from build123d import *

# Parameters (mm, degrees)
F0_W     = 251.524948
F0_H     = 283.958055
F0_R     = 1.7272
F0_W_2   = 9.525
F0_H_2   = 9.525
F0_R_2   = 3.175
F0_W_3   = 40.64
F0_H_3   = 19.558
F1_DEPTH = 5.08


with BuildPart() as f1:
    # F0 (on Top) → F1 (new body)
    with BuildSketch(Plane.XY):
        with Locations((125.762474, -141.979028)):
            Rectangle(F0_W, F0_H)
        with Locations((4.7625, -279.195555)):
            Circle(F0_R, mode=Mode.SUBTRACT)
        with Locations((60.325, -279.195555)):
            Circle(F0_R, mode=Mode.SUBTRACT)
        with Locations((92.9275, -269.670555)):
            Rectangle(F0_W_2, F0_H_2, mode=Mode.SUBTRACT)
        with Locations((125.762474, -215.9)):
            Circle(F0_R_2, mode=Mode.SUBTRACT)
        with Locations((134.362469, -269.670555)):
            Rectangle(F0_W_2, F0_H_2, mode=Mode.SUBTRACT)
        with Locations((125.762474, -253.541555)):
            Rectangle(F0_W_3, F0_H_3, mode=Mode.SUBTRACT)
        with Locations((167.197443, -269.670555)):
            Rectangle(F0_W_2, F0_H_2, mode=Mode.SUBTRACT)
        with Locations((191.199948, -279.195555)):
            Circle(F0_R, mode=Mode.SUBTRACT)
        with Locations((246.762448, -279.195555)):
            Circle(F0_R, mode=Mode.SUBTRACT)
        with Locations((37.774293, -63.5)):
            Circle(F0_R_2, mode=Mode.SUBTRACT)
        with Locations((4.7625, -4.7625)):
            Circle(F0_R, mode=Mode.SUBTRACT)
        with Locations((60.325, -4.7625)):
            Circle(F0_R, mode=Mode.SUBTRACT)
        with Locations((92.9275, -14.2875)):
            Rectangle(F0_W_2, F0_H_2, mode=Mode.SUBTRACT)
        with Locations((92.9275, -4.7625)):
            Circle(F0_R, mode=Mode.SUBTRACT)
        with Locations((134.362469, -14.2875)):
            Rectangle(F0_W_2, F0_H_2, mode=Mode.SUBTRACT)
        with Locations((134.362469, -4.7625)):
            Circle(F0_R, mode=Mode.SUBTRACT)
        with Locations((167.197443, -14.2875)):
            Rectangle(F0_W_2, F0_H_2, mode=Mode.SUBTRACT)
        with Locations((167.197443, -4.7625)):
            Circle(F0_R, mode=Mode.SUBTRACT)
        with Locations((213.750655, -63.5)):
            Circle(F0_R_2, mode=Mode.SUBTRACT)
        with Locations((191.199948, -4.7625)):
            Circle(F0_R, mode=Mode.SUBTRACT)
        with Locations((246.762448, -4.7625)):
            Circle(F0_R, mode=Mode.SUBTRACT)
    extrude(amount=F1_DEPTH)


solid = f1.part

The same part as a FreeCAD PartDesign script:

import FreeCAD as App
import Part
import Sketcher
from FreeCAD import Vector
Q = App.Units.Quantity


def add_polygon(sketch, points):
    """Adds a closed chain of lines whose ends are joined by coincident constraints."""
    first, n = sketch.GeometryCount, len(points)
    for a, b in zip(points, points[1:] + points[:1]):
        sketch.addGeometry(Part.LineSegment(App.Vector(*a, 0), App.Vector(*b, 0)), False)
    for i in range(n):
        sketch.addConstraint(Sketcher.Constraint("Coincident", first + i, 2, first + (i + 1) % n, 1))

doc = App.newDocument("Part")
body = doc.addObject("PartDesign::Body", "Body")

sketch1 = doc.addObject("Sketcher::SketchObject", "Sketch")
body.addObject(sketch1)
sketch1.AttachmentSupport = (doc.XY_Plane, [""])
sketch1.MapMode = "FlatFace"
add_polygon(sketch1, [(0, 0), (0, -284), (251.5, -284), (251.5, 0)])
sketch1.addGeometry(Part.Circle(Vector(4.8, -279.2, 0), Vector(0, 0, 1), 1.7), False)
sketch1.addGeometry(Part.Circle(Vector(60.3, -279.2, 0), Vector(0, 0, 1), 1.7), False)
add_polygon(sketch1, [(97.7, -274.4), (88.2, -274.4), (88.2, -264.9), (97.7, -264.9)])
add_polygon(sketch1, [(146.1, -263.3), (105.4, -263.3), (105.4, -243.8), (146.1, -243.8)])
sketch1.addGeometry(Part.Circle(Vector(125.8, -215.9, 0), Vector(0, 0, 1), 3.2), False)
add_polygon(sketch1, [(139.1, -274.4), (129.6, -274.4), (129.6, -264.9), (139.1, -264.9)])
add_polygon(sketch1, [(172, -274.4), (162.4, -274.4), (162.4, -264.9), (172, -264.9)])
sketch1.addGeometry(Part.Circle(Vector(191.2, -279.2, 0), Vector(0, 0, 1), 1.7), False)
sketch1.addGeometry(Part.Circle(Vector(246.8, -279.2, 0), Vector(0, 0, 1), 1.7), False)
sketch1.addGeometry(Part.Circle(Vector(37.8, -63.5, 0), Vector(0, 0, 1), 3.2), False)
sketch1.addGeometry(Part.Circle(Vector(4.8, -4.8, 0), Vector(0, 0, 1), 1.7), False)
sketch1.addGeometry(Part.Circle(Vector(60.3, -4.8, 0), Vector(0, 0, 1), 1.7), False)
add_polygon(sketch1, [(97.7, -19.1), (88.2, -19.1), (88.2, -9.5), (97.7, -9.5)])
sketch1.addGeometry(Part.Circle(Vector(92.9, -4.8, 0), Vector(0, 0, 1), 1.7), False)
add_polygon(sketch1, [(139.1, -19.1), (129.6, -19.1), (129.6, -9.5), (139.1, -9.5)])
sketch1.addGeometry(Part.Circle(Vector(134.4, -4.8, 0), Vector(0, 0, 1), 1.7), False)
add_polygon(sketch1, [(172, -19.1), (162.4, -19.1), (162.4, -9.5), (172, -9.5)])
sketch1.addGeometry(Part.Circle(Vector(167.2, -4.8, 0), Vector(0, 0, 1), 1.7), False)
sketch1.addGeometry(Part.Circle(Vector(213.8, -63.5, 0), Vector(0, 0, 1), 3.2), False)
sketch1.addGeometry(Part.Circle(Vector(191.2, -4.8, 0), Vector(0, 0, 1), 1.7), False)
sketch1.addGeometry(Part.Circle(Vector(246.8, -4.8, 0), Vector(0, 0, 1), 1.7), False)
sketch1.addConstraint([
    Sketcher.Constraint("Vertical", 0),
    Sketcher.Constraint("Horizontal", 1),
    Sketcher.Constraint("Vertical", 2),
    Sketcher.Constraint("Horizontal", 3),
    Sketcher.Constraint("Horizontal", 6),
    Sketcher.Constraint("Vertical", 7),
    Sketcher.Constraint("Horizontal", 8),
    Sketcher.Constraint("Vertical", 9),
    Sketcher.Constraint("Horizontal", 10),
    Sketcher.Constraint("Vertical", 11),
    Sketcher.Constraint("Horizontal", 12),
    Sketcher.Constraint("Vertical", 13),
    Sketcher.Constraint("Horizontal", 15),
    Sketcher.Constraint("Vertical", 16),
    Sketcher.Constraint("Horizontal", 17),
    Sketcher.Constraint("Vertical", 18),
    Sketcher.Constraint("Horizontal", 19),
    Sketcher.Constraint("Vertical", 20),
    Sketcher.Constraint("Horizontal", 21),
    Sketcher.Constraint("Vertical", 22),
    Sketcher.Constraint("Horizontal", 28),
    Sketcher.Constraint("Vertical", 29),
    Sketcher.Constraint("Horizontal", 30),
    Sketcher.Constraint("Vertical", 31),
    Sketcher.Constraint("Horizontal", 33),
    Sketcher.Constraint("Vertical", 34),
    Sketcher.Constraint("Horizontal", 35),
    Sketcher.Constraint("Vertical", 36),
    Sketcher.Constraint("Horizontal", 38),
    Sketcher.Constraint("Vertical", 39),
    Sketcher.Constraint("Horizontal", 40),
    Sketcher.Constraint("Vertical", 41),
    Sketcher.Constraint("Coincident", 3, 2, -1, 1),
    Sketcher.Constraint("Equal", 4, 5),
    Sketcher.Constraint("Equal", 5, 23),
    Sketcher.Constraint("Equal", 23, 24),
    Sketcher.Constraint("Equal", 14, 25),
    Sketcher.Constraint("Equal", 24, 26),
    Sketcher.Constraint("Equal", 26, 27),
    Sketcher.Constraint("Equal", 27, 32),
    Sketcher.Constraint("Equal", 32, 37),
    Sketcher.Constraint("Equal", 37, 42),
    Sketcher.Constraint("Equal", 25, 43),
    Sketcher.Constraint("Equal", 42, 44),
    Sketcher.Constraint("Equal", 44, 45),
    Sketcher.Constraint("Horizontal", 4, 3, 5, 3),
    Sketcher.Constraint("Horizontal", 5, 3, 23, 3),
    Sketcher.Constraint("Horizontal", 23, 3, 24, 3),
    Sketcher.Constraint("Horizontal", 26, 3, 27, 3),
    Sketcher.Constraint("Horizontal", 27, 3, 32, 3),
    Sketcher.Constraint("Horizontal", 32, 3, 37, 3),
    Sketcher.Constraint("Horizontal", 37, 3, 42, 3),
    Sketcher.Constraint("Horizontal", 25, 3, 43, 3),
    Sketcher.Constraint("Horizontal", 42, 3, 44, 3),
    Sketcher.Constraint("Horizontal", 44, 3, 45, 3),
    Sketcher.Constraint("Horizontal", 9, 2, 15, 2),
    Sketcher.Constraint("Horizontal", 8, 2, 16, 2),
    Sketcher.Constraint("Horizontal", 18, 2, 19, 2),
    Sketcher.Constraint("Horizontal", 17, 2, 20, 2),
    Sketcher.Constraint("Horizontal", 31, 2, 33, 2),
    Sketcher.Constraint("Horizontal", 30, 2, 34, 2),
    Sketcher.Constraint("Horizontal", 36, 2, 38, 2),
    Sketcher.Constraint("Horizontal", 35, 2, 39, 2),
    Sketcher.Constraint("Vertical", 4, 3, 26, 3),
    Sketcher.Constraint("Vertical", 5, 3, 27, 3),
    Sketcher.Constraint("Vertical", 23, 3, 44, 3),
    Sketcher.Constraint("Vertical", 24, 3, 45, 3),
    Sketcher.Constraint("Vertical", 7, 2, 28, 2),
    Sketcher.Constraint("Vertical", 9, 2, 30, 2),
    Sketcher.Constraint("Vertical", 16, 2, 33, 2),
    Sketcher.Constraint("Vertical", 18, 2, 35, 2),
    Sketcher.Constraint("Vertical", 20, 2, 38, 2),
    Sketcher.Constraint("Vertical", 22, 2, 40, 2),
    Sketcher.Constraint("Equal", 8, 15),
    Sketcher.Constraint("Equal", 17, 19),
    Sketcher.Constraint("Equal", 40, 7),
    Sketcher.Constraint("Equal", 22, 29),
    Sketcher.Constraint("Diameter", 14, Q("0.25 in")),
    Sketcher.Constraint("Diameter", 4, Q("0.136 in")),
    Sketcher.Constraint("DistanceX", 10, 2, 10, 1, Q("1.6 in")),
    Sketcher.Constraint("DistanceY", 14, 3, 25, 3, Q("6 in")),
    Sketcher.Constraint("DistanceY", 11, 1, 11, 2, Q("0.77 in")),
    Sketcher.Constraint("DistanceY", 14, 3, -1, 1, Q("8.5 in")),
    Sketcher.Constraint("DistanceX", 11, 2, 14, 3, Q("0.8 in")),
    Sketcher.Constraint("DistanceX", 6, 2, 6, 1, Q("0.375 in")),
    Sketcher.Constraint("DistanceY", 28, 2, -1, 1, Q("0.75 in")),
    Sketcher.Constraint("DistanceY", 0, 2, 7, 2, Q("0.75 in")),
    Sketcher.Constraint("DistanceX", -1, 1, 4, 3, Q("0.1875 in")),
    Sketcher.Constraint("DistanceX", -1, 1, 5, 3, Q("2.375 in")),
    Sketcher.Constraint("DistanceY", 26, 3, -1, 1, Q("0.1875 in")),
    Sketcher.Constraint("DistanceX", 23, 3, 24, 3, Q("2.1875 in")),
    Sketcher.Constraint("DistanceY", 0, 2, 4, 3, Q("0.1875 in")),
    Sketcher.Constraint("DistanceX", 24, 3, 1, 2, Q("0.1875 in")),
    Sketcher.Constraint("DistanceY", 8, 2, 10, 2, Q("0.0625 in")),
    Sketcher.Constraint("DistanceX", 28, 2, 32, 3, Q("0.1875 in")),
    Sketcher.Constraint("DistanceX", 33, 2, 37, 3, Q("0.1875 in")),
    Sketcher.Constraint("DistanceX", 38, 2, 42, 3, Q("0.1875 in")),
    Sketcher.Constraint("DistanceX", 1, 1, 1, 2, Q("251.524948 mm")),
    Sketcher.Constraint("DistanceX", -1, 1, 32, 3, Q("92.9275 mm")),
    Sketcher.Constraint("DistanceY", 0, 2, 0, 1, Q("283.958055 mm")),
    Sketcher.Constraint("DistanceX", -1, 1, 37, 3, Q("134.362469 mm")),
    Sketcher.Constraint("DistanceX", 25, 3, 14, 3, Q("87.988181 mm")),
    Sketcher.Constraint("DistanceX", 25, 3, 42, 3, Q("129.42315 mm")),
    Sketcher.Constraint("DistanceX", 25, 3, 43, 3, Q("175.976362 mm")),
    Sketcher.Constraint("DistanceX", -1, 1, 14, 3, Q("125.762474 mm")),
])
pad1 = doc.addObject("PartDesign::Pad", "Pad")
body.addObject(pad1)
pad1.Profile = sketch1
pad1.Length = Q("0.2 in")

doc.recompute()
